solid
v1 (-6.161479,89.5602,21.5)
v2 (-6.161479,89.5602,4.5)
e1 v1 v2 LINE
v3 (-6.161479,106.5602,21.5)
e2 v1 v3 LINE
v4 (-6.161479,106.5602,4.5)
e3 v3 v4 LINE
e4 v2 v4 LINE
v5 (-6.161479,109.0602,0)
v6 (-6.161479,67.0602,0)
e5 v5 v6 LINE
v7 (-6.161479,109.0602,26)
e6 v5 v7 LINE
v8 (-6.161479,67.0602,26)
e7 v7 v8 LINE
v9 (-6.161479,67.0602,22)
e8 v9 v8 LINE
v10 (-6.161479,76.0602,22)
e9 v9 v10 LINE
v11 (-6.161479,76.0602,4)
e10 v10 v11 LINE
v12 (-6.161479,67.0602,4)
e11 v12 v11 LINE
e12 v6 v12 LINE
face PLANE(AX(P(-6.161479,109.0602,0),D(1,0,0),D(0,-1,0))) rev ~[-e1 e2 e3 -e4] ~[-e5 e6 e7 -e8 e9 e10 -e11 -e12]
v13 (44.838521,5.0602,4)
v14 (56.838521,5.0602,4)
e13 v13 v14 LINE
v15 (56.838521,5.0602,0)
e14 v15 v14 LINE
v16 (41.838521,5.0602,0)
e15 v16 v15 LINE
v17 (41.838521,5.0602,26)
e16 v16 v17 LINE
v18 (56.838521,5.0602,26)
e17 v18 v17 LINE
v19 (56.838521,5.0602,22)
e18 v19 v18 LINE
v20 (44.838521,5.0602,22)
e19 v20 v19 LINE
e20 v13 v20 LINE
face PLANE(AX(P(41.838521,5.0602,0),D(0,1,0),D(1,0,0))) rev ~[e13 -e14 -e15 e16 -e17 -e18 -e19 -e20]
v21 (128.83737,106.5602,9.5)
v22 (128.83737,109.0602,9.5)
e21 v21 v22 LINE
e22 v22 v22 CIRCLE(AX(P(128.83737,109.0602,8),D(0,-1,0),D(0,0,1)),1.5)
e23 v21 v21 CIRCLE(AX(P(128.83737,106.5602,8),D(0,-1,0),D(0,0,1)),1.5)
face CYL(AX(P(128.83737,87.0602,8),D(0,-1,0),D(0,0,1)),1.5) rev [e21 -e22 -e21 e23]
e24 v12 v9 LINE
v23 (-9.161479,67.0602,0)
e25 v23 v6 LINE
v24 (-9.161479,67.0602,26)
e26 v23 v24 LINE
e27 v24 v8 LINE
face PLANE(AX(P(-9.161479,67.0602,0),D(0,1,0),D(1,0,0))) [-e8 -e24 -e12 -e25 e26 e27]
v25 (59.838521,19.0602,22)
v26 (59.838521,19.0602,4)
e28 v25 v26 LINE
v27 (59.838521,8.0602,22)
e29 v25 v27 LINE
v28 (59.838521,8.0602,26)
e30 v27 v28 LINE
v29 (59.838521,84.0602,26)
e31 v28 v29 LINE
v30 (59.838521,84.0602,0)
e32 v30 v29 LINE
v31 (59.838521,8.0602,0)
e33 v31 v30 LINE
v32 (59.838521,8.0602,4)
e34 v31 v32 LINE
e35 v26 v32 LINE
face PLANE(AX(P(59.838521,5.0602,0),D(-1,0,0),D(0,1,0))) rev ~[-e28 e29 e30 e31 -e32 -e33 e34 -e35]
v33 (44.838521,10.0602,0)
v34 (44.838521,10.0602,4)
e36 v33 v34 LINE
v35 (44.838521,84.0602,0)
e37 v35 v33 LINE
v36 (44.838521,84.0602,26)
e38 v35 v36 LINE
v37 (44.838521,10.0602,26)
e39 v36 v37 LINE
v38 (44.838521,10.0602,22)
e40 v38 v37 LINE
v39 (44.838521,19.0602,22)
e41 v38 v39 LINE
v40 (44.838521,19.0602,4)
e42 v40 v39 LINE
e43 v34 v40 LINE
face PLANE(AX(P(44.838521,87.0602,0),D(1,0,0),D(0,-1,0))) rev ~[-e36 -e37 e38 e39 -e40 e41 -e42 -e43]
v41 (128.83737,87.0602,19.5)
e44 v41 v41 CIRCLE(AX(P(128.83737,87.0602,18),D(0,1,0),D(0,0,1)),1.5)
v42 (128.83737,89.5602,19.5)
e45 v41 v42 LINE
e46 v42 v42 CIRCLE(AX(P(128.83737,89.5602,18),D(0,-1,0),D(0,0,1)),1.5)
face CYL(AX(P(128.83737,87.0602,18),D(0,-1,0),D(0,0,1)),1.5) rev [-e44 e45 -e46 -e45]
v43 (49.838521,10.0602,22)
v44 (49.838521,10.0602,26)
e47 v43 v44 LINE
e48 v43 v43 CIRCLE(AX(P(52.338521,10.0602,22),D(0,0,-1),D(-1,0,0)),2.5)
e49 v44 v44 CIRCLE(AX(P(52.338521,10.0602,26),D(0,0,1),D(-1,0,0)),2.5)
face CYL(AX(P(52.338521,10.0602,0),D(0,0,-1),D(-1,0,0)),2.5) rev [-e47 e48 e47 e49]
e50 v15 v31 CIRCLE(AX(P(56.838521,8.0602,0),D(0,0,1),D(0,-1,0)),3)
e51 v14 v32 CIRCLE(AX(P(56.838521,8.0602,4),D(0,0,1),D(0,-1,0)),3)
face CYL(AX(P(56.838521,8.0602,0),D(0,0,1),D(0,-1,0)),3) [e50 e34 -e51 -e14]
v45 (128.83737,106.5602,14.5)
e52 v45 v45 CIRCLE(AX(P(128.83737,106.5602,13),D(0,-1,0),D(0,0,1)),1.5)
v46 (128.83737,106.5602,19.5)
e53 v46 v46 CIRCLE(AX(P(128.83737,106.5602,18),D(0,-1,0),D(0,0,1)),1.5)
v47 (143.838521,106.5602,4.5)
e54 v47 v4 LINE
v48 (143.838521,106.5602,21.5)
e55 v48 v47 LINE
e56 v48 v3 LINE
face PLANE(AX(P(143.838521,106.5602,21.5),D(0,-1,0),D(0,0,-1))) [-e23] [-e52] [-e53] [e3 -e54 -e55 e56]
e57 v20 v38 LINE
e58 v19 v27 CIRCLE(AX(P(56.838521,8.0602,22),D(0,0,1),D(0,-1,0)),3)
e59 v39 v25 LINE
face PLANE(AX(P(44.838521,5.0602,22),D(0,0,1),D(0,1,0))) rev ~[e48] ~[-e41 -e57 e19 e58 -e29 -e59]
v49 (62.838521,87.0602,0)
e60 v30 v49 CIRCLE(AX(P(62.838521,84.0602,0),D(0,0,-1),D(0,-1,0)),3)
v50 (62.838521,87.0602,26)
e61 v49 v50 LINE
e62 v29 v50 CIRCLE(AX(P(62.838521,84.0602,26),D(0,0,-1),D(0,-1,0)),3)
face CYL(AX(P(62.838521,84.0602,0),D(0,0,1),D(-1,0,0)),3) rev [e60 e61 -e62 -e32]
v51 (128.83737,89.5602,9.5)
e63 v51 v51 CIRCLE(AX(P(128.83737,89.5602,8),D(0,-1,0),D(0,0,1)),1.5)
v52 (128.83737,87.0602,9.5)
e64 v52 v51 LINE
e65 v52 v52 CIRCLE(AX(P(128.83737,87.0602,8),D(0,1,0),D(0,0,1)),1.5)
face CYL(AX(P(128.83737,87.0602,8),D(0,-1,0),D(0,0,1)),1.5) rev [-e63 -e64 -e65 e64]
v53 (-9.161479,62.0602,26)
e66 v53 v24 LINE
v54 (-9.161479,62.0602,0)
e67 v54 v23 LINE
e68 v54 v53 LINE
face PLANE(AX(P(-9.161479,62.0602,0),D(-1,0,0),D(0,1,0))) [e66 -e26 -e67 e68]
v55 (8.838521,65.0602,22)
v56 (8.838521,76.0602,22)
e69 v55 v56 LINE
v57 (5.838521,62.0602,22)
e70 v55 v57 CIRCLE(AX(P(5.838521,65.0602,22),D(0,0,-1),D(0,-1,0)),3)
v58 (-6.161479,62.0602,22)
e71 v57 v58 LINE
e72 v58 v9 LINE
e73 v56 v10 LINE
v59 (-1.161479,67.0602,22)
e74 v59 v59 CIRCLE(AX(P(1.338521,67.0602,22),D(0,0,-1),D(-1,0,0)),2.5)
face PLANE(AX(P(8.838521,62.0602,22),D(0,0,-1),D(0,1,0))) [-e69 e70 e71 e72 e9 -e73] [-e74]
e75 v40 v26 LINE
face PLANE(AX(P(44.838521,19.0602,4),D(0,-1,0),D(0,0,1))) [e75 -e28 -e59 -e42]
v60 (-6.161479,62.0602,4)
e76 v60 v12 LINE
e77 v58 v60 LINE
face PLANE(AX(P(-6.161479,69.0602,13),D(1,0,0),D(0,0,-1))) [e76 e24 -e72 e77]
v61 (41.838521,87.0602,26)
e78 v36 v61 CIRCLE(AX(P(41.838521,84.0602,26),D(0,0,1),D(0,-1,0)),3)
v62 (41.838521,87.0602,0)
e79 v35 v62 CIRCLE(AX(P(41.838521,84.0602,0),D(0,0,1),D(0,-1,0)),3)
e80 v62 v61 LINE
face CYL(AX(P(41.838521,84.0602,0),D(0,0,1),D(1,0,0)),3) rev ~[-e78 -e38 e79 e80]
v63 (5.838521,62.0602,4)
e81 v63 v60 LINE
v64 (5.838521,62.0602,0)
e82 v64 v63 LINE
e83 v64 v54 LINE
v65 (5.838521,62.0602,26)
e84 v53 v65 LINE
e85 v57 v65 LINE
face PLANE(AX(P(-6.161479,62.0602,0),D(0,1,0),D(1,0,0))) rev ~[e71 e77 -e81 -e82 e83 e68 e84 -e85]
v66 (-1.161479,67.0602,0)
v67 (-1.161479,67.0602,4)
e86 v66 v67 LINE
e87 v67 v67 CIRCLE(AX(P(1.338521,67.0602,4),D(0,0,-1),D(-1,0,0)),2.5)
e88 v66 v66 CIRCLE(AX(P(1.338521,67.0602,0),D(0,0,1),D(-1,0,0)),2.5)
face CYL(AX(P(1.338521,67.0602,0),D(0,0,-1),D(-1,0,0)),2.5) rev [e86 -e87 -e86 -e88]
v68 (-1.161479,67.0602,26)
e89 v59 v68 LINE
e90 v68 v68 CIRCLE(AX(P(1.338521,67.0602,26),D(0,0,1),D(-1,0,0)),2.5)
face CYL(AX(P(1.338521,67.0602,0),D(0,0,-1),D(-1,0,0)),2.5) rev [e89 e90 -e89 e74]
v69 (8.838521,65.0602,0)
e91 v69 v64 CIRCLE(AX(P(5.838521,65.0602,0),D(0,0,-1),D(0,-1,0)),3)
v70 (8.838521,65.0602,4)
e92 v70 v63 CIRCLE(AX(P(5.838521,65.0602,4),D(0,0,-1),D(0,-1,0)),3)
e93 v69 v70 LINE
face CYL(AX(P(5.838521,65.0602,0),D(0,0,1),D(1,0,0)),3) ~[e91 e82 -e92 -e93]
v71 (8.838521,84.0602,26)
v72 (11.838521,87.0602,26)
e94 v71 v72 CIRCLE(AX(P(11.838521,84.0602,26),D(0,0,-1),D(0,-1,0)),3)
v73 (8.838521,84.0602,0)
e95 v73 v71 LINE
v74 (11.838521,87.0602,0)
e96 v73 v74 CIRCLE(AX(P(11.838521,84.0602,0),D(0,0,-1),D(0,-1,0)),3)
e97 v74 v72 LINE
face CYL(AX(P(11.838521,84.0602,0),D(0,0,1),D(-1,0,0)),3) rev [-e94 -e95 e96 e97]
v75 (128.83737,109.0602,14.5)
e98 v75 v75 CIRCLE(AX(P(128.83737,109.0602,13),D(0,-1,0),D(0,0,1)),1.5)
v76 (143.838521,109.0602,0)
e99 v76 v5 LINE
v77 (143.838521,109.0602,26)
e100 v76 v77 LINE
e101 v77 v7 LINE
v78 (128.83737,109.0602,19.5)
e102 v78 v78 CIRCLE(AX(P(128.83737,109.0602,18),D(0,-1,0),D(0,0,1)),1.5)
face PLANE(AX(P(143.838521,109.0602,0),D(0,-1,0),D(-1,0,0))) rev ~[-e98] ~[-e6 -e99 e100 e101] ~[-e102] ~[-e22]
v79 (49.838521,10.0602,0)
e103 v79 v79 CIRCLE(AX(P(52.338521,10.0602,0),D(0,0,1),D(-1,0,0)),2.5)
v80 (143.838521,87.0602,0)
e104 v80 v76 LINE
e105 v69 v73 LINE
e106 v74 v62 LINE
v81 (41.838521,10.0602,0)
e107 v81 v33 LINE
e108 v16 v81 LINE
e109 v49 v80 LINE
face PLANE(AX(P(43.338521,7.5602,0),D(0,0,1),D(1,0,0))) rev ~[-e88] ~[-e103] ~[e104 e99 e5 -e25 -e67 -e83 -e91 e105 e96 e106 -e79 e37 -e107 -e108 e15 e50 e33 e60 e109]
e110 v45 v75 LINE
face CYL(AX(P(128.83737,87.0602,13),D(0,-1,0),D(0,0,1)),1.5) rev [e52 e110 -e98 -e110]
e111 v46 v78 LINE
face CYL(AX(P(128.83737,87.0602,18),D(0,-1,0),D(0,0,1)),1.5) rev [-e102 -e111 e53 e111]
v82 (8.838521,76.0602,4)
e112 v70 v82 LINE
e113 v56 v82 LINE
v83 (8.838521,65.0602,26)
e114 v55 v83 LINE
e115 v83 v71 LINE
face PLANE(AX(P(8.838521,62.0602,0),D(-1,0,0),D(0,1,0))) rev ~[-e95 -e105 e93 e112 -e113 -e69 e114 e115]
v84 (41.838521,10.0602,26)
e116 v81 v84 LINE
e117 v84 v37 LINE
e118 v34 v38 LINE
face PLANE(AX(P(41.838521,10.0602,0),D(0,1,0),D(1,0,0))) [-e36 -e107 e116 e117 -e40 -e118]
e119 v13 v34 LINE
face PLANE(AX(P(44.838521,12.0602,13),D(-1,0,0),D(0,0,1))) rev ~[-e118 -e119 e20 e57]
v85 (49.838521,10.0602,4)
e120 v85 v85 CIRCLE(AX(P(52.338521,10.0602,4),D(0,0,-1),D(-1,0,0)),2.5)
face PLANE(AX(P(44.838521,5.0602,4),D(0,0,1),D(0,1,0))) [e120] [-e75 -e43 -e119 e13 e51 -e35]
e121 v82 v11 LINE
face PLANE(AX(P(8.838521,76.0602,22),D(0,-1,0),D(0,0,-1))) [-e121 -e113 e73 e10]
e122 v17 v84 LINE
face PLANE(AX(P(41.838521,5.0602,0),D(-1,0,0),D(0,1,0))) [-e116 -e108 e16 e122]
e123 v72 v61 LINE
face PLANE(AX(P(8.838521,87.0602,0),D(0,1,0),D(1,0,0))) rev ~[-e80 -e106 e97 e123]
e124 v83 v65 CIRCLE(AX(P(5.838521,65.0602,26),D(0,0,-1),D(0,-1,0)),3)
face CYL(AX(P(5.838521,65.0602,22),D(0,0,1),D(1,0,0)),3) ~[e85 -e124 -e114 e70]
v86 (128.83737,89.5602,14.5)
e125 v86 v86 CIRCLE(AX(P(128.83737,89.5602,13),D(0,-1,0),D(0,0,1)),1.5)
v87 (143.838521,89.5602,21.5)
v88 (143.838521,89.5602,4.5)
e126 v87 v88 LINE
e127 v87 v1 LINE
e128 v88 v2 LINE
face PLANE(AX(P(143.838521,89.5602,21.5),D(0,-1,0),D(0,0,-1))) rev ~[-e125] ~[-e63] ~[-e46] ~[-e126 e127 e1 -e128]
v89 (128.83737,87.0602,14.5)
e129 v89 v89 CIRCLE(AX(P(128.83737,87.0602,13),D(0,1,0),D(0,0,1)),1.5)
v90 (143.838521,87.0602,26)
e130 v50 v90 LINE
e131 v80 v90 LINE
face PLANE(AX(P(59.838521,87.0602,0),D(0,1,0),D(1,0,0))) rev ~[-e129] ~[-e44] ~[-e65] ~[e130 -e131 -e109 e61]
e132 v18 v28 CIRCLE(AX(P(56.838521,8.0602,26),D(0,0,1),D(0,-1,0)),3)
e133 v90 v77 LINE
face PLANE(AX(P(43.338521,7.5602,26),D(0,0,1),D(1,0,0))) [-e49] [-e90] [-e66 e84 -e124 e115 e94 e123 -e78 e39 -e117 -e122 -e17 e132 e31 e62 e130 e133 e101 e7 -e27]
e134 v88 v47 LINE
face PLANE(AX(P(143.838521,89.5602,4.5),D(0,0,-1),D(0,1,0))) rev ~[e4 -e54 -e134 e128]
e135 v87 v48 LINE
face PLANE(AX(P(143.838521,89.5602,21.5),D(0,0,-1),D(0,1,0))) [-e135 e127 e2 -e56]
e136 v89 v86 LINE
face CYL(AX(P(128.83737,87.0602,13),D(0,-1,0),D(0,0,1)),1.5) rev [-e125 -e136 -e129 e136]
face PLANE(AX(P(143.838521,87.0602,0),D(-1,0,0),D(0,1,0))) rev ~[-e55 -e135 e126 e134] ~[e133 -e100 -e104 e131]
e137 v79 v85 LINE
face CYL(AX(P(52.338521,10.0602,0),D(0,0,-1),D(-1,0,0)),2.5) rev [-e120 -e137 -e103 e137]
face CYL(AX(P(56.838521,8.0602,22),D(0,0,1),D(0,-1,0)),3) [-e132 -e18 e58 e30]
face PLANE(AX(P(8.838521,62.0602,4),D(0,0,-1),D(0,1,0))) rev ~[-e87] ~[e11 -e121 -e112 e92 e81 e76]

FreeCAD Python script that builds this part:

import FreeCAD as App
import Part
import Sketcher
from FreeCAD import Vector


def edges_at(feature, points):
    """Names of the edges that pass closest to the given points."""
    edges = feature.Shape.Edges
    near = lambda p: min(range(len(edges)), key=lambda i: edges[i].distToShape(Part.Vertex(*p))[0])
    return sorted({f"Edge{near(p) + 1}" for p in points})

doc = App.newDocument("Part")
body = doc.addObject("PartDesign::Body", "Body")

sketch1 = body.newObject("Sketcher::SketchObject", "Sketch")
sketch1.AttachmentSupport = (doc.getObject("XY_Plane"), [""])
sketch1.MapMode = "FlatFace"
sketch1.addGeometry([
    Part.LineSegment(Vector(8.8, 62.1, 0), Vector(8.8, 87.1, 0)),
    Part.LineSegment(Vector(8.8, 87.1, 0), Vector(44.8, 87.1, 0)),
    Part.LineSegment(Vector(44.8, 87.1, 0), Vector(44.8, 10.1, 0)),
    Part.LineSegment(Vector(44.8, 10.1, 0), Vector(41.8, 10.1, 0)),
    Part.LineSegment(Vector(41.8, 10.1, 0), Vector(41.8, 5.1, 0)),
    Part.LineSegment(Vector(41.8, 5.1, 0), Vector(59.8, 5.1, 0)),
    Part.LineSegment(Vector(59.8, 5.1, 0), Vector(59.8, 87.1, 0)),
    Part.LineSegment(Vector(59.8, 87.1, 0), Vector(143.8, 87.1, 0)),
    Part.LineSegment(Vector(143.8, 87.1, 0), Vector(143.8, 109.1, 0)),
    Part.LineSegment(Vector(143.8, 109.1, 0), Vector(-6.2, 109.1, 0)),
    Part.LineSegment(Vector(-6.2, 109.1, 0), Vector(-6.2, 67.1, 0)),
    Part.LineSegment(Vector(-6.2, 67.1, 0), Vector(-9.2, 67.1, 0)),
    Part.LineSegment(Vector(-9.2, 67.1, 0), Vector(-9.2, 62.1, 0)),
    Part.LineSegment(Vector(-9.2, 62.1, 0), Vector(8.8, 62.1, 0)),
    Part.Circle(Vector(52.3, 10.1, 0), Vector(0, 0, 1), 2.5),
    Part.Circle(Vector(1.3, 67.1, 0), Vector(0, 0, 1), 2.5),
], False)
sketch1.addConstraint([
    Sketcher.Constraint("Coincident", 0, 2, 1, 1),
    Sketcher.Constraint("Coincident", 1, 2, 2, 1),
    Sketcher.Constraint("Coincident", 2, 2, 3, 1),
    Sketcher.Constraint("Coincident", 3, 2, 4, 1),
    Sketcher.Constraint("Coincident", 4, 2, 5, 1),
    Sketcher.Constraint("Coincident", 5, 2, 6, 1),
    Sketcher.Constraint("Coincident", 6, 2, 7, 1),
    Sketcher.Constraint("Coincident", 7, 2, 8, 1),
    Sketcher.Constraint("Coincident", 8, 2, 9, 1),
    Sketcher.Constraint("Coincident", 9, 2, 10, 1),
    Sketcher.Constraint("Coincident", 10, 2, 11, 1),
    Sketcher.Constraint("Coincident", 11, 2, 12, 1),
    Sketcher.Constraint("Coincident", 12, 2, 13, 1),
    Sketcher.Constraint("Coincident", 13, 2, 0, 1),
    Sketcher.Constraint("Vertical", 0),
    Sketcher.Constraint("Horizontal", 1),
    Sketcher.Constraint("Vertical", 2),
    Sketcher.Constraint("Horizontal", 3),
    Sketcher.Constraint("Vertical", 4),
    Sketcher.Constraint("Horizontal", 5),
    Sketcher.Constraint("Vertical", 6),
    Sketcher.Constraint("Horizontal", 7),
    Sketcher.Constraint("Vertical", 8),
    Sketcher.Constraint("Horizontal", 9),
    Sketcher.Constraint("Vertical", 10),
    Sketcher.Constraint("Horizontal", 11),
    Sketcher.Constraint("Vertical", 12),
    Sketcher.Constraint("Horizontal", 13),
    Sketcher.Constraint("Equal", 14, 15),
    Sketcher.Constraint("Horizontal", 14, 3, 2, 2),
    Sketcher.Constraint("Horizontal", 1, 2, 6, 2),
    Sketcher.Constraint("Horizontal", 15, 3, 10, 2),
    Sketcher.Constraint("Equal", 3, 11),
    Sketcher.Constraint("Equal", 5, 13),
    Sketcher.Constraint("Equal", 4, 12),
    Sketcher.Constraint("Diameter", 14, 5.0),
    Sketcher.Constraint("DistanceX", 1, 1, 1, 2, 36.0),
    Sketcher.Constraint("DistanceX", 3, 2, 3, 1, 3.0),
    Sketcher.Constraint("DistanceX", 5, 1, 5, 2, 18.0),
    Sketcher.Constraint("DistanceX", 7, 1, 7, 2, 84.0),
    Sketcher.Constraint("DistanceY", 0, 1, 0, 2, 25.0),
    Sketcher.Constraint("DistanceY", 2, 2, 2, 1, 77.0),
    Sketcher.Constraint("DistanceY", 4, 2, 4, 1, 5.0),
    Sketcher.Constraint("DistanceY", 8, 1, 8, 2, 22.0),
    Sketcher.Constraint("DistanceX", 15, 3, 14, 3, 51.0),
    Sketcher.Constraint("DistanceX", 15, 3, 0, 2, 7.5),
    Sketcher.Constraint("DistanceY", -1, 1, 14, 3, 10.0602),
    Sketcher.Constraint("DistanceX", -1, 1, 14, 3, 52.338521),
])
pad1 = body.newObject("PartDesign::Pad", "Pad")
pad1.Profile = sketch1
pad1.Length = 26

sketch2 = body.newObject("Sketcher::SketchObject", "Sketch001")
sketch2.AttachmentSupport = (doc.getObject("YZ_Plane"), [""])
sketch2.MapMode = "FlatFace"
sketch2.AttachmentOffset = App.Placement(Vector(0, 0, 44.838521), App.Rotation())
sketch2.addGeometry([
    Part.LineSegment(Vector(19, 4, 0), Vector(5, 4, 0)),
    Part.LineSegment(Vector(5, 4, 0), Vector(5, 22, 0)),
    Part.LineSegment(Vector(5, 22, 0), Vector(19, 22, 0)),
    Part.LineSegment(Vector(19, 22, 0), Vector(19, 4, 0)),
], False)
sketch2.addConstraint([
    Sketcher.Constraint("Coincident", 0, 2, 1, 1),
    Sketcher.Constraint("Coincident", 1, 2, 2, 1),
    Sketcher.Constraint("Coincident", 2, 2, 3, 1),
    Sketcher.Constraint("Coincident", 3, 2, 0, 1),
    Sketcher.Constraint("Horizontal", 0),
    Sketcher.Constraint("Vertical", 1),
    Sketcher.Constraint("Horizontal", 2),
    Sketcher.Constraint("Vertical", 3),
    Sketcher.Constraint("DistanceX", 0, 2, 0, 1, 14.0),
    Sketcher.Constraint("DistanceY", 1, 1, 1, 2, 18.0),
    Sketcher.Constraint("DistanceY", -1, 1, 0, 2, 4.0),
    Sketcher.Constraint("DistanceX", -1, 1, 0, 2, 5.0602),
])
pocket1 = body.newObject("PartDesign::Pocket", "Pocket")
pocket1.Profile = sketch2
pocket1.Type = "UpToFirst"
pocket1.Reversed = True

sketch3 = body.newObject("Sketcher::SketchObject", "Sketch002")
sketch3.AttachmentSupport = (doc.getObject("XZ_Plane"), [""])
sketch3.MapMode = "FlatFace"
sketch3.AttachmentOffset = App.Placement(Vector(0, 0, -109.0602), App.Rotation())
sketch3.addGeometry([
    Part.Circle(Vector(128.8, 13, 0), Vector(0, 0, 1), 1.5),
    Part.Circle(Vector(128.8, 8, 0), Vector(0, 0, 1), 1.5),
    Part.Circle(Vector(128.8, 18, 0), Vector(0, 0, 1), 1.5),
], False)
sketch3.addConstraint([
    Sketcher.Constraint("Equal", 0, 1),
    Sketcher.Constraint("Equal", 1, 2),
    Sketcher.Constraint("Vertical", 0, 3, 1, 3),
    Sketcher.Constraint("Vertical", 1, 3, 2, 3),
    Sketcher.Constraint("Diameter", 0, 3.0),
    Sketcher.Constraint("DistanceY", -1, 1, 0, 3, 13.0),
    Sketcher.Constraint("DistanceY", -1, 1, 1, 3, 8.0),
    Sketcher.Constraint("DistanceY", -1, 1, 2, 3, 18.0),
    Sketcher.Constraint("DistanceX", -1, 1, 0, 3, 128.83737),
])
pocket2 = body.newObject("PartDesign::Pocket", "Pocket001")
pocket2.Profile = sketch3
pocket2.Type = "ThroughAll"
pocket2.Midplane = True

sketch4 = body.newObject("Sketcher::SketchObject", "Sketch003")
sketch4.AttachmentSupport = (doc.getObject("YZ_Plane"), [""])
sketch4.MapMode = "FlatFace"
sketch4.AttachmentOffset = App.Placement(Vector(0, 0, 143.838521), App.Rotation())
sketch4.addGeometry([
    Part.LineSegment(Vector(107, 22, 0), Vector(90, 22, 0)),
    Part.LineSegment(Vector(90, 22, 0), Vector(90, 4, 0)),
    Part.LineSegment(Vector(90, 4, 0), Vector(107, 4, 0)),
    Part.LineSegment(Vector(107, 4, 0), Vector(107, 22, 0)),
], False)
sketch4.addConstraint([
    Sketcher.Constraint("Coincident", 0, 2, 1, 1),
    Sketcher.Constraint("Coincident", 1, 2, 2, 1),
    Sketcher.Constraint("Coincident", 2, 2, 3, 1),
    Sketcher.Constraint("Coincident", 3, 2, 0, 1),
    Sketcher.Constraint("Horizontal", 0),
    Sketcher.Constraint("Vertical", 1),
    Sketcher.Constraint("Horizontal", 2),
    Sketcher.Constraint("Vertical", 3),
    Sketcher.Constraint("Equal", 2, 1),
    Sketcher.Constraint("DistanceX", 0, 2, 0, 1, 17.0),
    Sketcher.Constraint("DistanceY", -1, 1, 0, 2, 21.5),
    Sketcher.Constraint("DistanceX", -1, 1, 0, 2, 89.5602),
])
pocket3 = body.newObject("PartDesign::Pocket", "Pocket002")
pocket3.Profile = sketch4
pocket3.Type = "ThroughAll"

sketch5 = body.newObject("Sketcher::SketchObject", "Sketch004")
sketch5.AttachmentSupport = (doc.getObject("YZ_Plane"), [""])
sketch5.MapMode = "FlatFace"
sketch5.AttachmentOffset = App.Placement(Vector(0, 0, 8.838521), App.Rotation())
sketch5.addGeometry([
    Part.LineSegment(Vector(76, 22, 0), Vector(62, 22, 0)),
    Part.LineSegment(Vector(62, 22, 0), Vector(62, 4, 0)),
    Part.LineSegment(Vector(62, 4, 0), Vector(76, 4, 0)),
    Part.LineSegment(Vector(76, 4, 0), Vector(76, 22, 0)),
], False)
sketch5.addConstraint([
    Sketcher.Constraint("Coincident", 0, 2, 1, 1),
    Sketcher.Constraint("Coincident", 1, 2, 2, 1),
    Sketcher.Constraint("Coincident", 2, 2, 3, 1),
    Sketcher.Constraint("Coincident", 3, 2, 0, 1),
    Sketcher.Constraint("Horizontal", 0),
    Sketcher.Constraint("Vertical", 1),
    Sketcher.Constraint("Horizontal", 2),
    Sketcher.Constraint("Vertical", 3),
    Sketcher.Constraint("DistanceX", 0, 2, 0, 1, 14.0),
    Sketcher.Constraint("DistanceY", 1, 2, 1, 1, 18.0),
    Sketcher.Constraint("DistanceY", -1, 1, 0, 2, 22.0),
    Sketcher.Constraint("DistanceX", -1, 1, 0, 2, 62.0602),
])
pocket4 = body.newObject("PartDesign::Pocket", "Pocket003")
pocket4.Profile = sketch5
pocket4.Length = 15
doc.recompute()

fillet = body.newObject("PartDesign::Fillet", "Fillet")
fillet.Base = (pocket4, edges_at(pocket4, [(59.839, 87.06, 13), (8.839, 87.06, 13)]))
fillet.Radius = 3
doc.recompute()

fillet2 = body.newObject("PartDesign::Fillet", "Fillet001")
fillet2.Base = (fillet, edges_at(fillet, [(44.839, 87.06, 13)]))
fillet2.Radius = 3
doc.recompute()

fillet3 = body.newObject("PartDesign::Fillet", "Fillet002")
fillet3.Base = (fillet2, edges_at(fillet2, [(8.839, 62.06, 24)]))
fillet3.Radius = 3
doc.recompute()

fillet4 = body.newObject("PartDesign::Fillet", "Fillet003")
fillet4.Base = (fillet3, edges_at(fillet3, [(8.839, 62.06, 2), (59.839, 5.06, 24), (59.839, 5.06, 2)]))
fillet4.Radius = 3

doc.recompute()
